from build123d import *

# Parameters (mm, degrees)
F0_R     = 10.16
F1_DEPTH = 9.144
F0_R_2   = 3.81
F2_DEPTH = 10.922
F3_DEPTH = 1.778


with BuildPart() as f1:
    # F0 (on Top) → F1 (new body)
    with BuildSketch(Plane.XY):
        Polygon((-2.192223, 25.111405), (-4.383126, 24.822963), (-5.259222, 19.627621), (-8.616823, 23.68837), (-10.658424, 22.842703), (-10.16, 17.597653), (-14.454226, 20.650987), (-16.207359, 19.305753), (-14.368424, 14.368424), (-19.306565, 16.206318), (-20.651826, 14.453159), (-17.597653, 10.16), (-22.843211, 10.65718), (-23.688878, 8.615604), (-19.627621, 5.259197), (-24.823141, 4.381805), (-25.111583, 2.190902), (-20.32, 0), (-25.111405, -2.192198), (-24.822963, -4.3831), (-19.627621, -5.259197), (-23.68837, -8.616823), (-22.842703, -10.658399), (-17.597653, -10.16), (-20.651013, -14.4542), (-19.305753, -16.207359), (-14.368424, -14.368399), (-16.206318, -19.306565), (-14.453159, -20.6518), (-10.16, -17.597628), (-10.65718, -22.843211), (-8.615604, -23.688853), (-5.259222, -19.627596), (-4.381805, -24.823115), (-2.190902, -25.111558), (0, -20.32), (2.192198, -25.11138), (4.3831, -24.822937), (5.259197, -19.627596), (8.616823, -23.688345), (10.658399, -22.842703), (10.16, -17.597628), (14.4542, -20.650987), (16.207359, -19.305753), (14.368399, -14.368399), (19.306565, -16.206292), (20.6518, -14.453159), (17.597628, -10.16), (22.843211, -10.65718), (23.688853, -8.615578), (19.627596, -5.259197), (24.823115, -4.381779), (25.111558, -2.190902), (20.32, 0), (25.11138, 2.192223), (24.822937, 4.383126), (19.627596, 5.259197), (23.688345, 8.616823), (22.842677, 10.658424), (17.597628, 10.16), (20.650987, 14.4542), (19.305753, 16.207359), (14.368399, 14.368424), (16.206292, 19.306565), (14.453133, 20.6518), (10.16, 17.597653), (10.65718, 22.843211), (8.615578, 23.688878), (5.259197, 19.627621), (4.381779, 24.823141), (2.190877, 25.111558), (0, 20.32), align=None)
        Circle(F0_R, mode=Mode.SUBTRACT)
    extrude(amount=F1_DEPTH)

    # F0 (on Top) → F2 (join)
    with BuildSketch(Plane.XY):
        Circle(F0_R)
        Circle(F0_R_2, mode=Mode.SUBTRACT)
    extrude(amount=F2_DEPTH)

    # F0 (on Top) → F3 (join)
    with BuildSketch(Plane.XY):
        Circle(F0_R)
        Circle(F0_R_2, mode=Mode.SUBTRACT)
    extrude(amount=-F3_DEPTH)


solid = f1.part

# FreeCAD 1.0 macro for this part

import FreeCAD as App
import Part
import Sketcher
from FreeCAD import Vector
Q = App.Units.Quantity

doc = App.newDocument("Part")
body = doc.addObject("PartDesign::Body", "Body")

# Sketch on XY plane
sketch1 = doc.addObject("Sketcher::SketchObject", "Sketch")
body.addObject(sketch1)
sketch1.AttachmentSupport = (doc.XY_Plane, [""])
sketch1.MapMode = "FlatFace"
sketch1.addGeometry([
    Part.LineSegment(Vector(-2.192223, 25.111405, 0), Vector(-4.383126, 24.822963, 0)),  # 0
    Part.LineSegment(Vector(-4.383126, 24.822963, 0), Vector(-5.259222, 19.627621, 0)),  # 1
    Part.LineSegment(Vector(-5.259222, 19.627621, 0), Vector(-8.616823, 23.68837, 0)),  # 2
    Part.LineSegment(Vector(-8.616823, 23.68837, 0), Vector(-10.658424, 22.842703, 0)),  # 3
    Part.LineSegment(Vector(-10.658424, 22.842703, 0), Vector(-10.16, 17.597653, 0)),  # 4
    Part.LineSegment(Vector(-10.16, 17.597653, 0), Vector(-14.454226, 20.650987, 0)),  # 5
    Part.LineSegment(Vector(-14.454226, 20.650987, 0), Vector(-16.207359, 19.305753, 0)),  # 6
    Part.LineSegment(Vector(-16.207359, 19.305753, 0), Vector(-14.368424, 14.368424, 0)),  # 7
    Part.LineSegment(Vector(-14.368424, 14.368424, 0), Vector(-19.306565, 16.206318, 0)),  # 8
    Part.LineSegment(Vector(-19.306565, 16.206318, 0), Vector(-20.651826, 14.453159, 0)),  # 9
    Part.LineSegment(Vector(-20.651826, 14.453159, 0), Vector(-17.597653, 10.16, 0)),  # 10
    Part.LineSegment(Vector(-17.597653, 10.16, 0), Vector(-22.843211, 10.65718, 0)),  # 11
    Part.LineSegment(Vector(-22.843211, 10.65718, 0), Vector(-23.688878, 8.615604, 0)),  # 12
    Part.LineSegment(Vector(-23.688878, 8.615604, 0), Vector(-19.627621, 5.259197, 0)),  # 13
    Part.LineSegment(Vector(-19.627621, 5.259197, 0), Vector(-24.823141, 4.381805, 0)),  # 14
    Part.LineSegment(Vector(-24.823141, 4.381805, 0), Vector(-25.111583, 2.190902, 0)),  # 15
    Part.LineSegment(Vector(-25.111583, 2.190902, 0), Vector(-20.32, 0, 0)),  # 16
    Part.LineSegment(Vector(-20.32, 0, 0), Vector(-25.111405, -2.192198, 0)),  # 17
    Part.LineSegment(Vector(-25.111405, -2.192198, 0), Vector(-24.822963, -4.3831, 0)),  # 18
    Part.LineSegment(Vector(-24.822963, -4.3831, 0), Vector(-19.627621, -5.259197, 0)),  # 19
    Part.LineSegment(Vector(-19.627621, -5.259197, 0), Vector(-23.68837, -8.616823, 0)),  # 20
    Part.LineSegment(Vector(-23.68837, -8.616823, 0), Vector(-22.842703, -10.658399, 0)),  # 21
    Part.LineSegment(Vector(-22.842703, -10.658399, 0), Vector(-17.597653, -10.16, 0)),  # 22
    Part.LineSegment(Vector(-17.597653, -10.16, 0), Vector(-20.651013, -14.4542, 0)),  # 23
    Part.LineSegment(Vector(-20.651013, -14.4542, 0), Vector(-19.305753, -16.207359, 0)),  # 24
    Part.LineSegment(Vector(-19.305753, -16.207359, 0), Vector(-14.368424, -14.368399, 0)),  # 25
    Part.LineSegment(Vector(-14.368424, -14.368399, 0), Vector(-16.206318, -19.306565, 0)),  # 26
    Part.LineSegment(Vector(-16.206318, -19.306565, 0), Vector(-14.453159, -20.6518, 0)),  # 27
    Part.LineSegment(Vector(-14.453159, -20.6518, 0), Vector(-10.16, -17.597628, 0)),  # 28
    Part.LineSegment(Vector(-10.16, -17.597628, 0), Vector(-10.65718, -22.843211, 0)),  # 29
    Part.LineSegment(Vector(-10.65718, -22.843211, 0), Vector(-8.615604, -23.688853, 0)),  # 30
    Part.LineSegment(Vector(-8.615604, -23.688853, 0), Vector(-5.259222, -19.627596, 0)),  # 31
    Part.LineSegment(Vector(-5.259222, -19.627596, 0), Vector(-4.381805, -24.823115, 0)),  # 32
    Part.LineSegment(Vector(-4.381805, -24.823115, 0), Vector(-2.190902, -25.111558, 0)),  # 33
    Part.LineSegment(Vector(-2.190902, -25.111558, 0), Vector(0, -20.32, 0)),  # 34
    Part.LineSegment(Vector(0, -20.32, 0), Vector(2.192198, -25.11138, 0)),  # 35
    Part.LineSegment(Vector(2.192198, -25.11138, 0), Vector(4.3831, -24.822937, 0)),  # 36
    Part.LineSegment(Vector(4.3831, -24.822937, 0), Vector(5.259197, -19.627596, 0)),  # 37
    Part.LineSegment(Vector(5.259197, -19.627596, 0), Vector(8.616823, -23.688345, 0)),  # 38
    Part.LineSegment(Vector(8.616823, -23.688345, 0), Vector(10.658399, -22.842703, 0)),  # 39
    Part.LineSegment(Vector(10.658399, -22.842703, 0), Vector(10.16, -17.597628, 0)),  # 40
    Part.LineSegment(Vector(10.16, -17.597628, 0), Vector(14.4542, -20.650987, 0)),  # 41
    Part.LineSegment(Vector(14.4542, -20.650987, 0), Vector(16.207359, -19.305753, 0)),  # 42
    Part.LineSegment(Vector(16.207359, -19.305753, 0), Vector(14.368399, -14.368399, 0)),  # 43
    Part.LineSegment(Vector(14.368399, -14.368399, 0), Vector(19.306565, -16.206292, 0)),  # 44
    Part.LineSegment(Vector(19.306565, -16.206292, 0), Vector(20.6518, -14.453159, 0)),  # 45
    Part.LineSegment(Vector(20.6518, -14.453159, 0), Vector(17.597628, -10.16, 0)),  # 46
    Part.LineSegment(Vector(17.597628, -10.16, 0), Vector(22.843211, -10.65718, 0)),  # 47
    Part.LineSegment(Vector(22.843211, -10.65718, 0), Vector(23.688853, -8.615578, 0)),  # 48
    Part.LineSegment(Vector(23.688853, -8.615578, 0), Vector(19.627596, -5.259197, 0)),  # 49
    Part.LineSegment(Vector(19.627596, -5.259197, 0), Vector(24.823115, -4.381779, 0)),  # 50
    Part.LineSegment(Vector(24.823115, -4.381779, 0), Vector(25.111558, -2.190902, 0)),  # 51
    Part.LineSegment(Vector(25.111558, -2.190902, 0), Vector(20.32, 0, 0)),  # 52
    Part.LineSegment(Vector(20.32, 0, 0), Vector(25.11138, 2.192223, 0)),  # 53
    Part.LineSegment(Vector(25.11138, 2.192223, 0), Vector(24.822937, 4.383126, 0)),  # 54
    Part.LineSegment(Vector(24.822937, 4.383126, 0), Vector(19.627596, 5.259197, 0)),  # 55
    Part.LineSegment(Vector(19.627596, 5.259197, 0), Vector(23.688345, 8.616823, 0)),  # 56
    Part.LineSegment(Vector(23.688345, 8.616823, 0), Vector(22.842677, 10.658424, 0)),  # 57
    Part.LineSegment(Vector(22.842677, 10.658424, 0), Vector(17.597628, 10.16, 0)),  # 58
    Part.LineSegment(Vector(17.597628, 10.16, 0), Vector(20.650987, 14.4542, 0)),  # 59
    Part.LineSegment(Vector(20.650987, 14.4542, 0), Vector(19.305753, 16.207359, 0)),  # 60
    Part.LineSegment(Vector(19.305753, 16.207359, 0), Vector(14.368399, 14.368424, 0)),  # 61
    Part.LineSegment(Vector(14.368399, 14.368424, 0), Vector(16.206292, 19.306565, 0)),  # 62
    Part.LineSegment(Vector(16.206292, 19.306565, 0), Vector(14.453133, 20.6518, 0)),  # 63
    Part.LineSegment(Vector(14.453133, 20.6518, 0), Vector(10.16, 17.597653, 0)),  # 64
    Part.LineSegment(Vector(10.16, 17.597653, 0), Vector(10.65718, 22.843211, 0)),  # 65
    Part.LineSegment(Vector(10.65718, 22.843211, 0), Vector(8.615578, 23.688878, 0)),  # 66
    Part.LineSegment(Vector(8.615578, 23.688878, 0), Vector(5.259197, 19.627621, 0)),  # 67
    Part.LineSegment(Vector(5.259197, 19.627621, 0), Vector(4.381779, 24.823141, 0)),  # 68
    Part.LineSegment(Vector(4.381779, 24.823141, 0), Vector(2.190877, 25.111558, 0)),  # 69
    Part.LineSegment(Vector(2.190877, 25.111558, 0), Vector(0, 20.32, 0)),  # 70
    Part.LineSegment(Vector(0, 20.32, 0), Vector(-2.192223, 25.111405, 0)),  # 71
    Part.Circle(Vector(0, 0, 0), Vector(0, 0, 1), 10.16),  # 72
], False)
sketch1.addConstraint([
    Sketcher.Constraint("Coincident", 0, 2, 1, 1),
    Sketcher.Constraint("Coincident", 1, 2, 2, 1),
    Sketcher.Constraint("Coincident", 2, 2, 3, 1),
    Sketcher.Constraint("Coincident", 3, 2, 4, 1),
    Sketcher.Constraint("Coincident", 4, 2, 5, 1),
    Sketcher.Constraint("Coincident", 5, 2, 6, 1),
    Sketcher.Constraint("Coincident", 6, 2, 7, 1),
    Sketcher.Constraint("Coincident", 7, 2, 8, 1),
    Sketcher.Constraint("Coincident", 8, 2, 9, 1),
    Sketcher.Constraint("Coincident", 9, 2, 10, 1),
    Sketcher.Constraint("Coincident", 10, 2, 11, 1),
    Sketcher.Constraint("Coincident", 11, 2, 12, 1),
    Sketcher.Constraint("Coincident", 12, 2, 13, 1),
    Sketcher.Constraint("Coincident", 13, 2, 14, 1),
    Sketcher.Constraint("Coincident", 14, 2, 15, 1),
    Sketcher.Constraint("Coincident", 15, 2, 16, 1),
    Sketcher.Constraint("Coincident", 16, 2, 17, 1),
    Sketcher.Constraint("Coincident", 17, 2, 18, 1),
    Sketcher.Constraint("Coincident", 18, 2, 19, 1),
    Sketcher.Constraint("Coincident", 19, 2, 20, 1),
    Sketcher.Constraint("Coincident", 20, 2, 21, 1),
    Sketcher.Constraint("Coincident", 21, 2, 22, 1),
    Sketcher.Constraint("Coincident", 22, 2, 23, 1),
    Sketcher.Constraint("Coincident", 23, 2, 24, 1),
    Sketcher.Constraint("Coincident", 24, 2, 25, 1),
    Sketcher.Constraint("Coincident", 25, 2, 26, 1),
    Sketcher.Constraint("Coincident", 26, 2, 27, 1),
    Sketcher.Constraint("Coincident", 27, 2, 28, 1),
    Sketcher.Constraint("Coincident", 28, 2, 29, 1),
    Sketcher.Constraint("Coincident", 29, 2, 30, 1),
    Sketcher.Constraint("Coincident", 30, 2, 31, 1),
    Sketcher.Constraint("Coincident", 31, 2, 32, 1),
    Sketcher.Constraint("Coincident", 32, 2, 33, 1),
    Sketcher.Constraint("Coincident", 33, 2, 34, 1),
    Sketcher.Constraint("Coincident", 34, 2, 35, 1),
    Sketcher.Constraint("Coincident", 35, 2, 36, 1),
    Sketcher.Constraint("Coincident", 36, 2, 37, 1),
    Sketcher.Constraint("Coincident", 37, 2, 38, 1),
    Sketcher.Constraint("Coincident", 38, 2, 39, 1),
    Sketcher.Constraint("Coincident", 39, 2, 40, 1),
    Sketcher.Constraint("Coincident", 40, 2, 41, 1),
    Sketcher.Constraint("Coincident", 41, 2, 42, 1),
    Sketcher.Constraint("Coincident", 42, 2, 43, 1),
    Sketcher.Constraint("Coincident", 43, 2, 44, 1),
    Sketcher.Constraint("Coincident", 44, 2, 45, 1),
    Sketcher.Constraint("Coincident", 45, 2, 46, 1),
    Sketcher.Constraint("Coincident", 46, 2, 47, 1),
    Sketcher.Constraint("Coincident", 47, 2, 48, 1),
    Sketcher.Constraint("Coincident", 48, 2, 49, 1),
    Sketcher.Constraint("Coincident", 49, 2, 50, 1),
    Sketcher.Constraint("Coincident", 50, 2, 51, 1),
    Sketcher.Constraint("Coincident", 51, 2, 52, 1),
    Sketcher.Constraint("Coincident", 52, 2, 53, 1),
    Sketcher.Constraint("Coincident", 53, 2, 54, 1),
    Sketcher.Constraint("Coincident", 54, 2, 55, 1),
    Sketcher.Constraint("Coincident", 55, 2, 56, 1),
    Sketcher.Constraint("Coincident", 56, 2, 57, 1),
    Sketcher.Constraint("Coincident", 57, 2, 58, 1),
    Sketcher.Constraint("Coincident", 58, 2, 59, 1),
    Sketcher.Constraint("Coincident", 59, 2, 60, 1),
    Sketcher.Constraint("Coincident", 60, 2, 61, 1),
    Sketcher.Constraint("Coincident", 61, 2, 62, 1),
    Sketcher.Constraint("Coincident", 62, 2, 63, 1),
    Sketcher.Constraint("Coincident", 63, 2, 64, 1),
    Sketcher.Constraint("Coincident", 64, 2, 65, 1),
    Sketcher.Constraint("Coincident", 65, 2, 66, 1),
    Sketcher.Constraint("Coincident", 66, 2, 67, 1),
    Sketcher.Constraint("Coincident", 67, 2, 68, 1),
    Sketcher.Constraint("Coincident", 68, 2, 69, 1),
    Sketcher.Constraint("Coincident", 69, 2, 70, 1),
    Sketcher.Constraint("Coincident", 70, 2, 71, 1),
    Sketcher.Constraint("Coincident", 71, 2, 0, 1),
    Sketcher.Constraint("Coincident", 72, 3, -1, 1),
    Sketcher.Constraint("PointOnObject", 16, 2, -1),
    Sketcher.Constraint("PointOnObject", 34, 2, -2),
    Sketcher.Constraint("PointOnObject", 52, 2, -1),
    Sketcher.Constraint("PointOnObject", 70, 2, -2),
    Sketcher.Constraint("Diameter", 72, Q("0.8 in")),
    Sketcher.Constraint("DistanceX", 4, 2, -1, 1, Q("0.4 in")),
    Sketcher.Constraint("DistanceY", -1, 1, 10, 2, Q("0.4 in")),
    Sketcher.Constraint("DistanceX", 16, 2, -1, 1, Q("0.8 in")),
    Sketcher.Constraint("DistanceY", 22, 2, -1, 1, Q("0.4 in")),
    Sketcher.Constraint("DistanceX", 28, 2, -1, 1, Q("0.4 in")),
    Sketcher.Constraint("DistanceY", 34, 2, -1, 1, Q("0.8 in")),
    Sketcher.Constraint("DistanceX", -1, 1, 40, 2, Q("0.4 in")),
    Sketcher.Constraint("DistanceY", 46, 2, -1, 1, Q("0.4 in")),
    Sketcher.Constraint("DistanceX", -1, 1, 52, 2, Q("0.8 in")),
    Sketcher.Constraint("DistanceY", -1, 1, 58, 2, Q("0.4 in")),
    Sketcher.Constraint("DistanceX", -1, 1, 64, 2, Q("0.4 in")),
    Sketcher.Constraint("DistanceY", -1, 1, 70, 2, Q("0.8 in")),
    Sketcher.Constraint("Distance", 27, Q("0.0870001 in")),
    Sketcher.Constraint("Distance", 42, Q("0.087 in")),
    Sketcher.Constraint("Distance", 60, Q("0.087 in")),
    Sketcher.Constraint("Distance", 63, Q("0.0870001 in")),
    Sketcher.Constraint("Distance", 69, Q("0.0870002 in")),
    Sketcher.Constraint("Distance", 10, 5.268699),
    Sketcher.Constraint("Distance", 28, 5.268698),
    Sketcher.Constraint("Distance", 40, 5.268701),
    Sketcher.Constraint("Distance", 46, 5.268698),
    Sketcher.Constraint("Distance", 71, 5.269099),
    Sketcher.Constraint("DistanceY", -1, 1, 15, 2, 2.190902),
    Sketcher.Constraint("DistanceY", 18, 2, -1, 1, 4.3831),
    Sketcher.Constraint("DistanceY", 21, 2, -1, 1, 10.658399),
    Sketcher.Constraint("DistanceY", 23, 2, -1, 1, 14.4542),
    Sketcher.Constraint("DistanceY", 25, 2, -1, 1, 14.368399),
    Sketcher.Constraint("DistanceY", 27, 2, -1, 1, 20.6518),
    Sketcher.Constraint("DistanceX", 33, 2, -1, 1, 2.190902),
    Sketcher.Constraint("DistanceX", -1, 1, 36, 2, 4.3831),
    Sketcher.Constraint("DistanceX", -1, 1, 39, 2, 10.658399),
    Sketcher.Constraint("DistanceX", -1, 1, 41, 2, 14.4542),
    Sketcher.Constraint("DistanceX", -1, 1, 43, 2, 14.368399),
    Sketcher.Constraint("DistanceY", 43, 2, -1, 1, 14.368399),
    Sketcher.Constraint("DistanceX", -1, 1, 45, 2, 20.6518),
    Sketcher.Constraint("DistanceY", 51, 2, -1, 1, 2.190902),
    Sketcher.Constraint("DistanceY", -1, 1, 59, 2, 14.4542),
    Sketcher.Constraint("DistanceX", -1, 1, 61, 2, 14.368399),
    Sketcher.Constraint("DistanceY", -1, 1, 63, 2, 20.6518),
    Sketcher.Constraint("Distance", 0, 2.209809),
    Sketcher.Constraint("Distance", 4, 5.268679),
    Sketcher.Constraint("Distance", 6, 2.20978),
    Sketcher.Constraint("Distance", 7, 5.268672),
    Sketcher.Constraint("Distance", 8, 5.269069),
    Sketcher.Constraint("Distance", 15, 2.209809),
    Sketcher.Constraint("Distance", 16, 5.268711),
    Sketcher.Constraint("Distance", 17, 5.269089),
    Sketcher.Constraint("Distance", 25, 5.26868),
    Sketcher.Constraint("Distance", 29, 5.269092),
    Sketcher.Constraint("Distance", 31, 5.268691),
    Sketcher.Constraint("Distance", 33, 2.209809),
    Sketcher.Constraint("Distance", 34, 5.268689),
    Sketcher.Constraint("Distance", 37, 5.268692),
    Sketcher.Constraint("Distance", 45, 2.209781),
    Sketcher.Constraint("Distance", 47, 5.269092),
    Sketcher.Constraint("Distance", 49, 5.268691),
    Sketcher.Constraint("Distance", 52, 5.268689),
    Sketcher.Constraint("Distance", 54, 2.209809),
    Sketcher.Constraint("Distance", 62, 5.269069),
    Sketcher.Constraint("Distance", 67, 5.268691),
    Sketcher.Constraint("Distance", 68, 5.269088),
    Sketcher.Constraint("Distance", 70, 5.268678),
    Sketcher.Constraint("DistanceY", -1, 1, 1, 2, 19.627621),
    Sketcher.Constraint("DistanceY", -1, 1, 2, 2, 23.68837),
    Sketcher.Constraint("DistanceX", 6, 2, -1, 1, 16.207359),
    Sketcher.Constraint("DistanceY", -1, 1, 9, 2, 14.453159),
    Sketcher.Constraint("DistanceX", 11, 2, -1, 1, 22.843211),
    Sketcher.Constraint("DistanceY", -1, 1, 11, 2, 10.65718),
    Sketcher.Constraint("DistanceX", 13, 2, -1, 1, 19.627621),
    Sketcher.Constraint("DistanceX", 14, 2, -1, 1, 24.823141),
    Sketcher.Constraint("DistanceX", 19, 2, -1, 1, 19.627621),
    Sketcher.Constraint("DistanceX", 20, 2, -1, 1, 23.68837),
    Sketcher.Constraint("DistanceY", 24, 2, -1, 1, 16.207359),
    Sketcher.Constraint("DistanceX", 27, 2, -1, 1, 14.453159),
    Sketcher.Constraint("DistanceX", 29, 2, -1, 1, 10.65718),
    Sketcher.Constraint("DistanceY", 35, 2, -1, 1, 25.11138),
    Sketcher.Constraint("DistanceY", 40, 2, -1, 1, 17.597628),
    Sketcher.Constraint("DistanceX", -1, 1, 42, 2, 16.207359),
    Sketcher.Constraint("DistanceY", 45, 2, -1, 1, 14.453159),
    Sketcher.Constraint("DistanceX", -1, 1, 47, 2, 22.843211),
    Sketcher.Constraint("DistanceY", 50, 2, -1, 1, 4.381779),
    Sketcher.Constraint("DistanceX", -1, 1, 53, 2, 25.11138),
    Sketcher.Constraint("DistanceX", -1, 1, 58, 2, 17.597628),
    Sketcher.Constraint("DistanceY", -1, 1, 60, 2, 16.207359),
    Sketcher.Constraint("DistanceX", -1, 1, 65, 2, 10.65718),
    Sketcher.Constraint("DistanceY", -1, 1, 65, 2, 22.843211),
    Sketcher.Constraint("DistanceY", -1, 1, 67, 2, 19.627621),
    Sketcher.Constraint("DistanceX", -1, 1, 68, 2, 4.381779),
    Sketcher.Constraint("DistanceY", -1, 1, 68, 2, 24.823141),
    Sketcher.Constraint("Distance", 1, 5.268693),
    Sketcher.Constraint("Distance", 2, 5.269076),
    Sketcher.Constraint("Distance", 3, 2.209816),
    Sketcher.Constraint("Distance", 5, 5.269082),
    Sketcher.Constraint("Distance", 9, 2.209818),
    Sketcher.Constraint("Distance", 11, 5.269067),
    Sketcher.Constraint("Distance", 12, 2.209793),
    Sketcher.Constraint("Distance", 13, 5.268707),
    Sketcher.Constraint("Distance", 14, 5.269084),
    Sketcher.Constraint("Distance", 18, 2.209808),
    Sketcher.Constraint("Distance", 19, 5.268693),
    Sketcher.Constraint("Distance", 20, 5.269092),
    Sketcher.Constraint("Distance", 21, 2.209793),
    Sketcher.Constraint("Distance", 22, 5.268676),
    Sketcher.Constraint("Distance", 23, 5.269076),
    Sketcher.Constraint("Distance", 24, 2.209817),
    Sketcher.Constraint("Distance", 26, 5.269093),
    Sketcher.Constraint("Distance", 30, 2.209783),
    Sketcher.Constraint("Distance", 32, 5.269087),
    Sketcher.Constraint("Distance", 35, 5.269066),
    Sketcher.Constraint("Distance", 36, 2.209808),
    Sketcher.Constraint("Distance", 38, 5.269092),
    Sketcher.Constraint("Distance", 39, 2.209783),
    Sketcher.Constraint("Distance", 41, 5.269075),
    Sketcher.Constraint("Distance", 44, 5.269092),
    Sketcher.Constraint("Distance", 48, 2.209807),
    Sketcher.Constraint("Distance", 50, 5.269087),
    Sketcher.Constraint("Distance", 51, 2.209783),
    Sketcher.Constraint("Distance", 53, 5.269076),
    Sketcher.Constraint("Distance", 55, 5.268688),
    Sketcher.Constraint("Distance", 56, 5.269092),
    Sketcher.Constraint("Distance", 57, 2.209817),
    Sketcher.Constraint("Distance", 58, 5.268678),
    Sketcher.Constraint("Distance", 59, 5.269075),
    Sketcher.Constraint("Distance", 61, 5.268695),
    Sketcher.Constraint("Distance", 64, 5.268663),
    Sketcher.Constraint("Distance", 65, 5.269067),
    Sketcher.Constraint("Distance", 66, 2.209817),
    Sketcher.Constraint("DistanceX", 0, 2, -1, 1, 4.383126),
    Sketcher.Constraint("DistanceY", -1, 1, 0, 2, 24.822963),
    Sketcher.Constraint("DistanceX", 3, 2, -1, 1, 10.658424),
    Sketcher.Constraint("DistanceX", 5, 2, -1, 1, 14.454226),
    Sketcher.Constraint("DistanceX", 7, 2, -1, 1, 14.368424),
    Sketcher.Constraint("DistanceY", 17, 2, -1, 1, 2.192198),
    Sketcher.Constraint("DistanceX", 30, 2, -1, 1, 8.615604),
    Sketcher.Constraint("DistanceX", 31, 2, -1, 1, 5.259222),
    Sketcher.Constraint("DistanceX", -1, 1, 37, 2, 5.259197),
    Sketcher.Constraint("DistanceX", -1, 1, 48, 2, 23.688853),
    Sketcher.Constraint("DistanceX", -1, 1, 54, 2, 24.822937),
    Sketcher.Constraint("DistanceX", -1, 1, 55, 2, 19.627596),
    Sketcher.Constraint("DistanceX", -1, 1, 56, 2, 23.688345),
])
pad1 = doc.addObject("PartDesign::Pad", "Pad")
body.addObject(pad1)
pad1.Profile = sketch1
pad1.Length = Q("0.36 in")

# Sketch on XY plane
sketch2 = doc.addObject("Sketcher::SketchObject", "Sketch001")
body.addObject(sketch2)
sketch2.AttachmentSupport = (doc.XY_Plane, [""])
sketch2.MapMode = "FlatFace"
sketch2.addGeometry([
    Part.Circle(Vector(0, 0, 0), Vector(0, 0, 1), 10.2),
    Part.Circle(Vector(0, 0, 0), Vector(0, 0, 1), 3.8),
], False)
sketch2.addConstraint([
    Sketcher.Constraint("Coincident", 0, 3, -1, 1),
    Sketcher.Constraint("Coincident", 1, 3, -1, 1),
    Sketcher.Constraint("Diameter", 0, Q("0.8 in")),
    Sketcher.Constraint("Diameter", 1, Q("0.3 in")),
])
pad2 = doc.addObject("PartDesign::Pad", "Pad001")
body.addObject(pad2)
pad2.Profile = sketch2
pad2.Length = Q("0.43 in")

# Sketch on XY plane
sketch3 = doc.addObject("Sketcher::SketchObject", "Sketch002")
body.addObject(sketch3)
sketch3.AttachmentSupport = (doc.XY_Plane, [""])
sketch3.MapMode = "FlatFace"
sketch3.addGeometry([
    Part.Circle(Vector(0, 0, 0), Vector(0, 0, 1), 10.2),
    Part.Circle(Vector(0, 0, 0), Vector(0, 0, 1), 3.8),
], False)
sketch3.addConstraint([
    Sketcher.Constraint("Coincident", 0, 3, -1, 1),
    Sketcher.Constraint("Coincident", 1, 3, -1, 1),
    Sketcher.Constraint("Diameter", 0, Q("0.8 in")),
    Sketcher.Constraint("Diameter", 1, Q("0.3 in")),
])
pad3 = doc.addObject("PartDesign::Pad", "Pad002")
body.addObject(pad3)
pad3.Profile = sketch3
pad3.Length = Q("0.07 in")
pad3.Reversed = True

doc.recompute()
